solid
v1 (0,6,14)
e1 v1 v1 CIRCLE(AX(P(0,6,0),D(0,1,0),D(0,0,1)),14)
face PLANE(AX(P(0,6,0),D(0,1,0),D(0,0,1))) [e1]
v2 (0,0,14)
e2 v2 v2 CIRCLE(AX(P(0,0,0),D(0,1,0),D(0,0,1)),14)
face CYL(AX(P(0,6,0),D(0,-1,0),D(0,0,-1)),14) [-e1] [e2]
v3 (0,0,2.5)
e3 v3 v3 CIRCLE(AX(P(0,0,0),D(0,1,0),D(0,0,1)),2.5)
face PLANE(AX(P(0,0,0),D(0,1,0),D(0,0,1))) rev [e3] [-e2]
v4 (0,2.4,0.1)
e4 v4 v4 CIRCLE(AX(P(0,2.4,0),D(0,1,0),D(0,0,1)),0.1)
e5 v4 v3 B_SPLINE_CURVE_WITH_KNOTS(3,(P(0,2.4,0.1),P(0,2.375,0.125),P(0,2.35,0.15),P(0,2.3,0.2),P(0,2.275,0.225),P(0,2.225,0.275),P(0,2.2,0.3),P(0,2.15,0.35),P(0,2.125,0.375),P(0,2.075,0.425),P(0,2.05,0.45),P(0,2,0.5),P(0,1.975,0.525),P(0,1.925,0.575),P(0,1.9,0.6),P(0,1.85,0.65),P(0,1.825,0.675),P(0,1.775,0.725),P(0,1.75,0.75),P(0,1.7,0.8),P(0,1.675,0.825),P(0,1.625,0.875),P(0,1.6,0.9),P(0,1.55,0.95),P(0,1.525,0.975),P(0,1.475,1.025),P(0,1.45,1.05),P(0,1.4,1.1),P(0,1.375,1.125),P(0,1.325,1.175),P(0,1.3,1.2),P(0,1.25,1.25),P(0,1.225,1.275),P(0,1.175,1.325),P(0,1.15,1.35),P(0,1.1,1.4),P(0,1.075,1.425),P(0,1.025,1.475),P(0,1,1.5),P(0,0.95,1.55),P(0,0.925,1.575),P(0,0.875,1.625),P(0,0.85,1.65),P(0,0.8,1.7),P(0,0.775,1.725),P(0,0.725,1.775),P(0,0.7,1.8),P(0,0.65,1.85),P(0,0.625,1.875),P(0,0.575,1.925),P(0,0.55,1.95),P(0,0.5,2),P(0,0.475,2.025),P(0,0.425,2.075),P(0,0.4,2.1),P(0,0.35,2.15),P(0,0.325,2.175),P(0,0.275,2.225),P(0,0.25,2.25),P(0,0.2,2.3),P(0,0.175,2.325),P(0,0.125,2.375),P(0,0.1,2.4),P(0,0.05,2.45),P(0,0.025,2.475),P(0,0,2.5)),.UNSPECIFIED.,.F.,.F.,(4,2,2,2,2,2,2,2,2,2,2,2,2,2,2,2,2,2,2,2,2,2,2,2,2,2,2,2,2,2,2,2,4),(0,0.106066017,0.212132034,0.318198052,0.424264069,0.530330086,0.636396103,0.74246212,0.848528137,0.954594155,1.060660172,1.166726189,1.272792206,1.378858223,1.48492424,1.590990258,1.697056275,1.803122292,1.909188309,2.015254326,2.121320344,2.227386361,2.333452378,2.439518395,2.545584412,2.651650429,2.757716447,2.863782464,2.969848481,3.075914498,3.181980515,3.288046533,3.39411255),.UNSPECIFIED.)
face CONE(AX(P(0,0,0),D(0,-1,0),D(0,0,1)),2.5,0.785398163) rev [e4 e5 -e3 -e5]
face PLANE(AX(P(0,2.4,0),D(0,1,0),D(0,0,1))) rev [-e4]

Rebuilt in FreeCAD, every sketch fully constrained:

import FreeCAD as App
import Part
import Sketcher

V = App.Vector

doc = App.newDocument("Part")
params = doc.addObject("Spreadsheet::Sheet", "Params")
for row, (alias, value) in enumerate([
    ("sketch1_diameter", "28 mm"),
    ("pad1_length", "6 mm"),
    ("sketch2_diameter", "5 mm"),
    ("pocket1_length", "2.4 mm"),
    ("pocket1_taper", "-45 deg"),
], start=1):
    params.set(f"A{row}", alias)
    params.set(f"B{row}", "=" + value)
    params.setAlias(f"B{row}", alias)

body = doc.addObject("PartDesign::Body", "Body")

sketch1 = body.newObject("Sketcher::SketchObject", "Sketch")
sketch1.AttachmentSupport = (doc.getObject("XZ_Plane"), [""])
sketch1.MapMode = "FlatFace"
sketch1.addGeometry(Part.Circle(V(0, 0, 0), V(0, 0, 1), 14), False)
sketch1.addConstraint(Sketcher.Constraint("Coincident", 0, 3, -1, 1))
sketch1.addConstraint(Sketcher.Constraint("Diameter", 0, 28.0))
sketch1.setExpression("Constraints[1]", "Params.sketch1_diameter")
pad1 = body.newObject("PartDesign::Pad", "Pad")
pad1.Profile = sketch1
pad1.setExpression("Length", "Params.pad1_length")
pad1.Reversed = True

sketch2 = body.newObject("Sketcher::SketchObject", "Sketch001")
sketch2.AttachmentSupport = (doc.getObject("XZ_Plane"), [""])
sketch2.MapMode = "FlatFace"
sketch2.addGeometry(Part.Circle(V(0, 0, 0), V(0, 0, 1), 2.5), False)
sketch2.addConstraint(Sketcher.Constraint("Coincident", 0, 3, -1, 1))
sketch2.addConstraint(Sketcher.Constraint("Diameter", 0, 5.0))
sketch2.setExpression("Constraints[1]", "Params.sketch2_diameter")
pocket1 = body.newObject("PartDesign::Pocket", "Pocket")
pocket1.Profile = sketch2
pocket1.setExpression("Length", "Params.pocket1_length")
pocket1.setExpression("TaperAngle", "Params.pocket1_taper")

doc.recompute()
